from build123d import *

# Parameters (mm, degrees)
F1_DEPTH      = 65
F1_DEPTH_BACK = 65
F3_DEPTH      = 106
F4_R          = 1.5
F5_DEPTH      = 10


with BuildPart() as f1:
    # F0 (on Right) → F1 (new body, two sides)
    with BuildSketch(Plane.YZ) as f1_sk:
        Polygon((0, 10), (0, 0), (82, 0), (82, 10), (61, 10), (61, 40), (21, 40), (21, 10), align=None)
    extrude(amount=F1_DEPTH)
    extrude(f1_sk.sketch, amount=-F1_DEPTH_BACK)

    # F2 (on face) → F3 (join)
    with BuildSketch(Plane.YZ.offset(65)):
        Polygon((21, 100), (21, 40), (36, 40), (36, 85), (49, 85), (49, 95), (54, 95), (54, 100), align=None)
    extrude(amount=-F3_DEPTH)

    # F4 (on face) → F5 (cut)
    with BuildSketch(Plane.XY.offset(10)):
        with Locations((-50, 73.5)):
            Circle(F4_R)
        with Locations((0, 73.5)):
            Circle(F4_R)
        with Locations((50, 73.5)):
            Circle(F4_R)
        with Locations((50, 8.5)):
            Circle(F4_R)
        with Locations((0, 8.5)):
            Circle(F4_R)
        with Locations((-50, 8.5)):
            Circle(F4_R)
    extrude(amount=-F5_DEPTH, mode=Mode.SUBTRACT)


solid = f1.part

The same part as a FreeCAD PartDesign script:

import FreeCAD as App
import Part
import Sketcher

V = App.Vector


def add_polygon(sketch, points):
    """Adds a closed chain of lines whose ends are joined by coincident constraints."""
    first, n = sketch.GeometryCount, len(points)
    for a, b in zip(points, points[1:] + points[:1]):
        sketch.addGeometry(Part.LineSegment(App.Vector(*a, 0), App.Vector(*b, 0)), False)
    for i in range(n):
        sketch.addConstraint(Sketcher.Constraint("Coincident", first + i, 2, first + (i + 1) % n, 1))

doc = App.newDocument("Part")
body = doc.addObject("PartDesign::Body", "Body")

# Sketch on YZ plane
sketch1 = body.newObject("Sketcher::SketchObject", "Sketch")
sketch1.AttachmentSupport = (doc.getObject("YZ_Plane"), [""])
sketch1.MapMode = "FlatFace"
add_polygon(sketch1, [(0, 10), (0, 0), (82, 0), (82, 10), (61, 10), (61, 40), (21, 40), (21, 10)])  # lines 0-7
sketch1.addConstraint([
    Sketcher.Constraint("Vertical", 0),
    Sketcher.Constraint("Horizontal", 1),
    Sketcher.Constraint("Vertical", 2),
    Sketcher.Constraint("Horizontal", 3),
    Sketcher.Constraint("Vertical", 4),
    Sketcher.Constraint("Horizontal", 5),
    Sketcher.Constraint("Vertical", 6),
    Sketcher.Constraint("Horizontal", 7),
    Sketcher.Constraint("Coincident", 0, 2, -1, 1),
    Sketcher.Constraint("Horizontal", 3, 2, 6, 2),
    Sketcher.Constraint("Equal", 3, 7),
    Sketcher.Constraint("DistanceX", 1, 1, 1, 2, 82.0),
    Sketcher.Constraint("DistanceX", 3, 2, 3, 1, 21.0),
    Sketcher.Constraint("DistanceY", 0, 2, 0, 1, 10.0),
    Sketcher.Constraint("DistanceY", 4, 1, 4, 2, 30.0),
])
pad1 = body.newObject("PartDesign::Pad", "Pad")
pad1.Profile = sketch1
pad1.Type = "TwoLengths"
pad1.Length = 65
pad1.Length2 = 65

# Sketch on YZ plane
sketch2 = body.newObject("Sketcher::SketchObject", "Sketch001")
sketch2.AttachmentSupport = (doc.getObject("YZ_Plane"), [""])
sketch2.MapMode = "FlatFace"
sketch2.AttachmentOffset = App.Placement(V(0, 0, 65), App.Rotation())
add_polygon(sketch2, [(21, 100), (21, 40), (36, 40), (36, 85), (49, 85), (49, 95), (54, 95), (54, 100)])  # lines 0-7
sketch2.addConstraint([
    Sketcher.Constraint("Vertical", 0),
    Sketcher.Constraint("Horizontal", 1),
    Sketcher.Constraint("Vertical", 2),
    Sketcher.Constraint("Horizontal", 3),
    Sketcher.Constraint("Vertical", 4),
    Sketcher.Constraint("Horizontal", 5),
    Sketcher.Constraint("Vertical", 6),
    Sketcher.Constraint("Horizontal", 7),
    Sketcher.Constraint("Equal", 5, 6),
    Sketcher.Constraint("DistanceX", 1, 1, 1, 2, 15.0),
    Sketcher.Constraint("DistanceX", 3, 1, 3, 2, 13.0),
    Sketcher.Constraint("DistanceX", 5, 1, 5, 2, 5.0),
    Sketcher.Constraint("DistanceY", 0, 2, 0, 1, 60.0),
    Sketcher.Constraint("DistanceY", 2, 1, 2, 2, 45.0),
    Sketcher.Constraint("DistanceX", -1, 1, 0, 2, 21.0),
    Sketcher.Constraint("DistanceY", -1, 1, 0, 2, 40.0),
])
pad2 = body.newObject("PartDesign::Pad", "Pad001")
pad2.Profile = sketch2
pad2.Length = 106
pad2.Reversed = True

# Sketch on XY plane
sketch3 = body.newObject("Sketcher::SketchObject", "Sketch002")
sketch3.AttachmentSupport = (doc.getObject("XY_Plane"), [""])
sketch3.MapMode = "FlatFace"
sketch3.AttachmentOffset = App.Placement(V(0, 0, 10), App.Rotation())
sketch3.addGeometry([
    Part.Circle(V(-50, 73.5, 0), V(0, 0, 1), 1.5),  # 0
    Part.Circle(V(0, 73.5, 0), V(0, 0, 1), 1.5),  # 1
    Part.Circle(V(50, 73.5, 0), V(0, 0, 1), 1.5),  # 2
    Part.Circle(V(50, 8.5, 0), V(0, 0, 1), 1.5),  # 3
    Part.Circle(V(0, 8.5, 0), V(0, 0, 1), 1.5),  # 4
    Part.Circle(V(-50, 8.5, 0), V(0, 0, 1), 1.5),  # 5
], False)
sketch3.addConstraint([
    Sketcher.Constraint("Equal", 0, 1),
    Sketcher.Constraint("Equal", 1, 2),
    Sketcher.Constraint("Equal", 2, 3),
    Sketcher.Constraint("Equal", 3, 4),
    Sketcher.Constraint("Equal", 4, 5),
    Sketcher.Constraint("Symmetric", 0, 3, 2, 3, -2),
    Sketcher.Constraint("Symmetric", 3, 3, 5, 3, -2),
    Sketcher.Constraint("PointOnObject", 1, 3, -2),
    Sketcher.Constraint("PointOnObject", 4, 3, -2),
    Sketcher.Constraint("Horizontal", 0, 3, 1, 3),
    Sketcher.Constraint("Horizontal", 3, 3, 4, 3),
    Sketcher.Constraint("Vertical", 2, 3, 3, 3),
    Sketcher.Constraint("Diameter", 0, 3.0),
    Sketcher.Constraint("DistanceX", 0, 3, -1, 1, 50.0),
    Sketcher.Constraint("DistanceY", 3, 3, 2, 3, 65.0),
    Sketcher.Constraint("DistanceY", -1, 1, 0, 3, 73.5),
])
pocket1 = body.newObject("PartDesign::Pocket", "Pocket")
pocket1.Profile = sketch3
pocket1.Length = 10

doc.recompute()
